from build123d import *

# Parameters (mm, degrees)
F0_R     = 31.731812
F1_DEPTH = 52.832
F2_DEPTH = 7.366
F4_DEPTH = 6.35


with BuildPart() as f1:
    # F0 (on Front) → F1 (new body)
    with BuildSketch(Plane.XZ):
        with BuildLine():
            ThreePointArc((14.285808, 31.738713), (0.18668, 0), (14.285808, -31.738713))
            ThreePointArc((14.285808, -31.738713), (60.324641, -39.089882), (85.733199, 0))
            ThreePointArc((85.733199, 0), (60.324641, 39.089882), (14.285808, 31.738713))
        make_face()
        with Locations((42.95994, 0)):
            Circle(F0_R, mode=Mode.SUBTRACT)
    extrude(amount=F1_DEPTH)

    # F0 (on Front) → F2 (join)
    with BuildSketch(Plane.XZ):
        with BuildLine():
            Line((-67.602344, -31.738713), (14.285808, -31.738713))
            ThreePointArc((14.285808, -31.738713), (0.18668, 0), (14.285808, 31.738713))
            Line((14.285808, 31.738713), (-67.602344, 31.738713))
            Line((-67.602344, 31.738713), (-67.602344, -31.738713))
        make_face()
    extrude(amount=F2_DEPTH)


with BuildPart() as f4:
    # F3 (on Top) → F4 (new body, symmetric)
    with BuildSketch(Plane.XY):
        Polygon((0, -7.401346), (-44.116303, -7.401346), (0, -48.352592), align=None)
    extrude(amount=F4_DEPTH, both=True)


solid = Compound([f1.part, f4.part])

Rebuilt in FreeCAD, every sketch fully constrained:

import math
import FreeCAD as App
import Part
import Sketcher

V = App.Vector
Q = App.Units.Quantity


def add_polygon(sketch, points):
    """Adds a closed chain of lines whose ends are joined by coincident constraints."""
    first, n = sketch.GeometryCount, len(points)
    for a, b in zip(points, points[1:] + points[:1]):
        sketch.addGeometry(Part.LineSegment(App.Vector(*a, 0), App.Vector(*b, 0)), False)
    for i in range(n):
        sketch.addConstraint(Sketcher.Constraint("Coincident", first + i, 2, first + (i + 1) % n, 1))

doc = App.newDocument("Part")
body = doc.addObject("PartDesign::Body", "Body")

# Sketch on XZ plane
sketch1 = body.newObject("Sketcher::SketchObject", "Sketch")
sketch1.AttachmentSupport = (doc.getObject("XZ_Plane"), [""])
sketch1.MapMode = "FlatFace"
sketch1.addGeometry([
    Part.ArcOfCircle(Part.Circle(V(43, 0, 0), V(0, 0, 1), 43), math.radians(132), math.radians(228)),
    Part.ArcOfCircle(Part.Circle(V(43, 0, 0), V(0, 0, 1), 43), math.radians(-132), math.radians(0)),
    Part.ArcOfCircle(Part.Circle(V(43, 0, 0), V(0, 0, 1), 43), math.radians(0), math.radians(132)),
    Part.Circle(V(43, 0, 0), V(0, 0, 1), 32),
], False)
sketch1.addConstraint([
    Sketcher.Constraint("Tangent", 0, 2, 1, 1),
    Sketcher.Constraint("Tangent", 1, 2, 2, 1),
    Sketcher.Constraint("Tangent", 2, 2, 0, 1),
    Sketcher.Constraint("Coincident", 3, 3, 0, 3),
    Sketcher.Constraint("Symmetric", 0, 2, 2, 2, -1),
    Sketcher.Constraint("PointOnObject", 1, 2, -1),
    Sketcher.Constraint("Radius", 0, Q("42.773259 mm")),
    Sketcher.Constraint("Diameter", 3, Q("63.463624 mm")),
    Sketcher.Constraint("DistanceX", -1, 1, 1, 2, Q("85.733199 mm")),
    Sketcher.Constraint("DistanceX", -1, 1, 2, 2, Q("14.285808 mm")),
])
pad1 = body.newObject("PartDesign::Pad", "Pad")
pad1.Profile = sketch1
pad1.Length = Q("2.08 in")

# Sketch on XZ plane
sketch2 = body.newObject("Sketcher::SketchObject", "Sketch001")
sketch2.AttachmentSupport = (doc.getObject("XZ_Plane"), [""])
sketch2.MapMode = "FlatFace"
sketch2.addGeometry([
    Part.LineSegment(V(-68, -32, 0), V(14, -32, 0)),
    Part.ArcOfCircle(Part.Circle(V(43, 0, 0), V(0, 0, 1), 43), math.radians(132), math.radians(228)),
    Part.LineSegment(V(14, 32, 0), V(-68, 32, 0)),
    Part.LineSegment(V(-68, 32, 0), V(-68, -32, 0)),
], False)
sketch2.addConstraint([
    Sketcher.Constraint("Coincident", 0, 2, 1, 2),
    Sketcher.Constraint("Coincident", 1, 1, 2, 1),
    Sketcher.Constraint("Coincident", 2, 2, 3, 1),
    Sketcher.Constraint("Coincident", 3, 2, 0, 1),
    Sketcher.Constraint("Horizontal", 0),
    Sketcher.Constraint("Horizontal", 2),
    Sketcher.Constraint("Vertical", 3),
    Sketcher.Constraint("Symmetric", 0, 2, 1, 1, -1),
    Sketcher.Constraint("Radius", 1, Q("42.773259 mm")),
    Sketcher.Constraint("DistanceX", 0, 1, 0, 2, Q("81.888152 mm")),
    Sketcher.Constraint("DistanceY", 3, 2, 3, 1, Q("63.477426 mm")),
    Sketcher.Constraint("DistanceX", -1, 1, 1, 3, Q("42.959939 mm")),
])
pad2 = body.newObject("PartDesign::Pad", "Pad001")
pad2.Profile = sketch2
pad2.Length = Q("0.29 in")
body2 = doc.addObject("PartDesign::Body", "Body001")

# Sketch on XY plane
sketch3 = body2.newObject("Sketcher::SketchObject", "Sketch002")
sketch3.AttachmentSupport = (doc.getObject("XY_Plane001"), [""])
sketch3.MapMode = "FlatFace"
add_polygon(sketch3, [(0, -7), (-44, -7), (0, -48)])  # lines 0-2
sketch3.addConstraint([
    Sketcher.Constraint("Horizontal", 0),
    Sketcher.Constraint("Vertical", 2),
    Sketcher.Constraint("PointOnObject", 1, 2, -2),
    Sketcher.Constraint("Distance", 1, Q("60.193461 mm")),
    Sketcher.Constraint("DistanceX", 0, 2, 0, 1, Q("44.116303 mm")),
    Sketcher.Constraint("DistanceY", 0, 2, -1, 1, Q("7.401346 mm")),
])
pad3 = body2.newObject("PartDesign::Pad", "Pad002")
pad3.Profile = sketch3
pad3.Length = Q("0.5 in")
pad3.Midplane = True

doc.recompute()
